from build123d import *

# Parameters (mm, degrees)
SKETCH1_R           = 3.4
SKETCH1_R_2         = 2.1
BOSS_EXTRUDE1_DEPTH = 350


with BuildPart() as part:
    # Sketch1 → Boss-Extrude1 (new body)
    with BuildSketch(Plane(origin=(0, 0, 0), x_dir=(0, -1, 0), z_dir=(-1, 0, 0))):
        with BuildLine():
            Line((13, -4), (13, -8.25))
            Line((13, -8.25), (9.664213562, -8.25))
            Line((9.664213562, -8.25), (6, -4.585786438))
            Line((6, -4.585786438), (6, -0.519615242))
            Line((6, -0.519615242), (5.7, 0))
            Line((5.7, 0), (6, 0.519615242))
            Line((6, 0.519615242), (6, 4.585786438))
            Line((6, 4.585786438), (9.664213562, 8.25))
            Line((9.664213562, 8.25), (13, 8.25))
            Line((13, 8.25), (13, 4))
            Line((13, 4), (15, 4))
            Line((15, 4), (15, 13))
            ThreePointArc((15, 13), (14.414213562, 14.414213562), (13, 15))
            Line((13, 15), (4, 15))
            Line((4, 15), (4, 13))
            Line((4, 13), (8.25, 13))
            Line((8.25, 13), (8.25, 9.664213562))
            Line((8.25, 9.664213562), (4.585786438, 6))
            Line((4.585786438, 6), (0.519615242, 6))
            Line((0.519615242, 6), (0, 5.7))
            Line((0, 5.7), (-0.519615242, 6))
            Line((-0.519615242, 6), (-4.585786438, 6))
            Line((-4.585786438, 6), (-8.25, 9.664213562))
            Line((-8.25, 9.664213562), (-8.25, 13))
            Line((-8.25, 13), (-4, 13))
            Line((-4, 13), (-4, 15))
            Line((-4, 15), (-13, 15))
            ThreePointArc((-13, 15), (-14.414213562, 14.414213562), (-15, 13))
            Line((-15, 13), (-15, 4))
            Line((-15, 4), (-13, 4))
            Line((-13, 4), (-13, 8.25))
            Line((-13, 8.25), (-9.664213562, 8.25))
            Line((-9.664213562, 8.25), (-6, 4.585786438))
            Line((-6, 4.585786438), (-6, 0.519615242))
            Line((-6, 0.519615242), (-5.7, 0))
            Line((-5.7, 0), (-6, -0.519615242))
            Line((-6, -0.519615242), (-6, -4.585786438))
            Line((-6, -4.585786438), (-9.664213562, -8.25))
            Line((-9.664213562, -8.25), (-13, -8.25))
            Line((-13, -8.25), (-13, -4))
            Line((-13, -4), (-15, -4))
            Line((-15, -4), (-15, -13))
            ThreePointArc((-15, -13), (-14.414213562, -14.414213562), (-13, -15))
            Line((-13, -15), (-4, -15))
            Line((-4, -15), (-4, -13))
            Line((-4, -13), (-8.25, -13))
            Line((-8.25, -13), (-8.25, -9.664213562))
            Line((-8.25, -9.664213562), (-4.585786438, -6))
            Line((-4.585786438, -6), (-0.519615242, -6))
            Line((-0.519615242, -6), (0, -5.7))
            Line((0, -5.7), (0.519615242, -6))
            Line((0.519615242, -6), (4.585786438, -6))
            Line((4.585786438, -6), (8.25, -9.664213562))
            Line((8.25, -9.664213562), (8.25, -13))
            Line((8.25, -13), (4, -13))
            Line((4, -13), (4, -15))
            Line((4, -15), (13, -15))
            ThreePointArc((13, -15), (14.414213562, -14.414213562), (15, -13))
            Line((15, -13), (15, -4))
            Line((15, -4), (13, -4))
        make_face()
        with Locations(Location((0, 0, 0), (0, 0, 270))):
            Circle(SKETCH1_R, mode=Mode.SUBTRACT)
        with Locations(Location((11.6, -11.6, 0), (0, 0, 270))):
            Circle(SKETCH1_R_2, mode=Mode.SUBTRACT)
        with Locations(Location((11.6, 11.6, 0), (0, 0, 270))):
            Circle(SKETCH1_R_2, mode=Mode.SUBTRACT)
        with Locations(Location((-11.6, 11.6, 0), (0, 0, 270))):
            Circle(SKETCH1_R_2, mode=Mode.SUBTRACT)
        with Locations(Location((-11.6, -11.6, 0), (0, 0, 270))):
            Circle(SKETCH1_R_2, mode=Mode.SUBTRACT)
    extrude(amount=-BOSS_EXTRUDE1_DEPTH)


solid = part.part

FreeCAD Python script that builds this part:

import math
import FreeCAD as App
import Part
import Sketcher
Q = App.Units.Quantity

doc = App.newDocument("Part")
body = doc.addObject("PartDesign::Body", "Body")

# Sketch on YZ plane
sketch1 = doc.addObject("Sketcher::SketchObject", "Sketch")
body.addObject(sketch1)
sketch1.AttachmentSupport = (doc.YZ_Plane, [""])
sketch1.MapMode = "FlatFace"
sketch1.addGeometry([
    Part.LineSegment(App.Vector(-13, -4, 0), App.Vector(-13, -8.2, 0)),  # 0
    Part.LineSegment(App.Vector(-13, -8.2, 0), App.Vector(-9.7, -8.2, 0)),  # 1
    Part.LineSegment(App.Vector(-9.7, -8.2, 0), App.Vector(-6, -4.6, 0)),  # 2
    Part.LineSegment(App.Vector(-6, -4.6, 0), App.Vector(-6, -0.5, 0)),  # 3
    Part.LineSegment(App.Vector(-6, -0.5, 0), App.Vector(-5.7, 0, 0)),  # 4
    Part.LineSegment(App.Vector(-5.7, 0, 0), App.Vector(-6, 0.5, 0)),  # 5
    Part.LineSegment(App.Vector(-6, 0.5, 0), App.Vector(-6, 4.6, 0)),  # 6
    Part.LineSegment(App.Vector(-6, 4.6, 0), App.Vector(-9.7, 8.2, 0)),  # 7
    Part.LineSegment(App.Vector(-9.7, 8.2, 0), App.Vector(-13, 8.2, 0)),  # 8
    Part.LineSegment(App.Vector(-13, 8.2, 0), App.Vector(-13, 4, 0)),  # 9
    Part.LineSegment(App.Vector(-13, 4, 0), App.Vector(-15, 4, 0)),  # 10
    Part.LineSegment(App.Vector(-15, 4, 0), App.Vector(-15, 13, 0)),  # 11
    Part.ArcOfCircle(Part.Circle(App.Vector(-13, 13, 0), App.Vector(0, 0, 1), 2), math.radians(90), math.radians(180)),  # 12
    Part.LineSegment(App.Vector(-13, 15, 0), App.Vector(-4, 15, 0)),  # 13
    Part.LineSegment(App.Vector(-4, 15, 0), App.Vector(-4, 13, 0)),  # 14
    Part.LineSegment(App.Vector(-4, 13, 0), App.Vector(-8.2, 13, 0)),  # 15
    Part.LineSegment(App.Vector(-8.2, 13, 0), App.Vector(-8.2, 9.7, 0)),  # 16
    Part.LineSegment(App.Vector(-8.2, 9.7, 0), App.Vector(-4.6, 6, 0)),  # 17
    Part.LineSegment(App.Vector(-4.6, 6, 0), App.Vector(-0.5, 6, 0)),  # 18
    Part.LineSegment(App.Vector(-0.5, 6, 0), App.Vector(0, 5.7, 0)),  # 19
    Part.LineSegment(App.Vector(0, 5.7, 0), App.Vector(0.5, 6, 0)),  # 20
    Part.LineSegment(App.Vector(0.5, 6, 0), App.Vector(4.6, 6, 0)),  # 21
    Part.LineSegment(App.Vector(4.6, 6, 0), App.Vector(8.2, 9.7, 0)),  # 22
    Part.LineSegment(App.Vector(8.2, 9.7, 0), App.Vector(8.2, 13, 0)),  # 23
    Part.LineSegment(App.Vector(8.2, 13, 0), App.Vector(4, 13, 0)),  # 24
    Part.LineSegment(App.Vector(4, 13, 0), App.Vector(4, 15, 0)),  # 25
    Part.LineSegment(App.Vector(4, 15, 0), App.Vector(13, 15, 0)),  # 26
    Part.ArcOfCircle(Part.Circle(App.Vector(13, 13, 0), App.Vector(0, 0, 1), 2), math.radians(0), math.radians(90)),  # 27
    Part.LineSegment(App.Vector(15, 13, 0), App.Vector(15, 4, 0)),  # 28
    Part.LineSegment(App.Vector(15, 4, 0), App.Vector(13, 4, 0)),  # 29
    Part.LineSegment(App.Vector(13, 4, 0), App.Vector(13, 8.2, 0)),  # 30
    Part.LineSegment(App.Vector(13, 8.2, 0), App.Vector(9.7, 8.2, 0)),  # 31
    Part.LineSegment(App.Vector(9.7, 8.2, 0), App.Vector(6, 4.6, 0)),  # 32
    Part.LineSegment(App.Vector(6, 4.6, 0), App.Vector(6, 0.5, 0)),  # 33
    Part.LineSegment(App.Vector(6, 0.5, 0), App.Vector(5.7, 0, 0)),  # 34
    Part.LineSegment(App.Vector(5.7, 0, 0), App.Vector(6, -0.5, 0)),  # 35
    Part.LineSegment(App.Vector(6, -0.5, 0), App.Vector(6, -4.6, 0)),  # 36
    Part.LineSegment(App.Vector(6, -4.6, 0), App.Vector(9.7, -8.2, 0)),  # 37
    Part.LineSegment(App.Vector(9.7, -8.2, 0), App.Vector(13, -8.2, 0)),  # 38
    Part.LineSegment(App.Vector(13, -8.2, 0), App.Vector(13, -4, 0)),  # 39
    Part.LineSegment(App.Vector(13, -4, 0), App.Vector(15, -4, 0)),  # 40
    Part.LineSegment(App.Vector(15, -4, 0), App.Vector(15, -13, 0)),  # 41
    Part.ArcOfCircle(Part.Circle(App.Vector(13, -13, 0), App.Vector(0, 0, 1), 2), math.radians(-90), math.radians(0)),  # 42
    Part.LineSegment(App.Vector(13, -15, 0), App.Vector(4, -15, 0)),  # 43
    Part.LineSegment(App.Vector(4, -15, 0), App.Vector(4, -13, 0)),  # 44
    Part.LineSegment(App.Vector(4, -13, 0), App.Vector(8.2, -13, 0)),  # 45
    Part.LineSegment(App.Vector(8.2, -13, 0), App.Vector(8.2, -9.7, 0)),  # 46
    Part.LineSegment(App.Vector(8.2, -9.7, 0), App.Vector(4.6, -6, 0)),  # 47
    Part.LineSegment(App.Vector(4.6, -6, 0), App.Vector(0.5, -6, 0)),  # 48
    Part.LineSegment(App.Vector(0.5, -6, 0), App.Vector(0, -5.7, 0)),  # 49
    Part.LineSegment(App.Vector(0, -5.7, 0), App.Vector(-0.5, -6, 0)),  # 50
    Part.LineSegment(App.Vector(-0.5, -6, 0), App.Vector(-4.6, -6, 0)),  # 51
    Part.LineSegment(App.Vector(-4.6, -6, 0), App.Vector(-8.2, -9.7, 0)),  # 52
    Part.LineSegment(App.Vector(-8.2, -9.7, 0), App.Vector(-8.2, -13, 0)),  # 53
    Part.LineSegment(App.Vector(-8.2, -13, 0), App.Vector(-4, -13, 0)),  # 54
    Part.LineSegment(App.Vector(-4, -13, 0), App.Vector(-4, -15, 0)),  # 55
    Part.LineSegment(App.Vector(-4, -15, 0), App.Vector(-13, -15, 0)),  # 56
    Part.ArcOfCircle(Part.Circle(App.Vector(-13, -13, 0), App.Vector(0, 0, 1), 2), math.radians(-180), math.radians(-90)),  # 57
    Part.LineSegment(App.Vector(-15, -13, 0), App.Vector(-15, -4, 0)),  # 58
    Part.LineSegment(App.Vector(-15, -4, 0), App.Vector(-13, -4, 0)),  # 59
    Part.Circle(App.Vector(11.6, -11.6, 0), App.Vector(0, 0, 1), 2.1),  # 60
    Part.Circle(App.Vector(-11.6, -11.6, 0), App.Vector(0, 0, 1), 2.1),  # 61
    Part.Circle(App.Vector(11.6, 11.6, 0), App.Vector(0, 0, 1), 2.1),  # 62
    Part.Circle(App.Vector(0, 0, 0), App.Vector(0, 0, 1), 3.4),  # 63
    Part.Circle(App.Vector(-11.6, 11.6, 0), App.Vector(0, 0, 1), 2.1),  # 64
], False)
sketch1.addConstraint([
    Sketcher.Constraint("Coincident", 0, 2, 1, 1),
    Sketcher.Constraint("Coincident", 1, 2, 2, 1),
    Sketcher.Constraint("Coincident", 2, 2, 3, 1),
    Sketcher.Constraint("Coincident", 3, 2, 4, 1),
    Sketcher.Constraint("Coincident", 4, 2, 5, 1),
    Sketcher.Constraint("Coincident", 5, 2, 6, 1),
    Sketcher.Constraint("Coincident", 6, 2, 7, 1),
    Sketcher.Constraint("Coincident", 7, 2, 8, 1),
    Sketcher.Constraint("Coincident", 8, 2, 9, 1),
    Sketcher.Constraint("Coincident", 9, 2, 10, 1),
    Sketcher.Constraint("Coincident", 10, 2, 11, 1),
    Sketcher.Constraint("Tangent", 11, 2, 12, 2),
    Sketcher.Constraint("Tangent", 12, 1, 13, 1),
    Sketcher.Constraint("Coincident", 13, 2, 14, 1),
    Sketcher.Constraint("Coincident", 14, 2, 15, 1),
    Sketcher.Constraint("Coincident", 15, 2, 16, 1),
    Sketcher.Constraint("Coincident", 16, 2, 17, 1),
    Sketcher.Constraint("Coincident", 17, 2, 18, 1),
    Sketcher.Constraint("Coincident", 18, 2, 19, 1),
    Sketcher.Constraint("Coincident", 19, 2, 20, 1),
    Sketcher.Constraint("Coincident", 20, 2, 21, 1),
    Sketcher.Constraint("Coincident", 21, 2, 22, 1),
    Sketcher.Constraint("Coincident", 22, 2, 23, 1),
    Sketcher.Constraint("Coincident", 23, 2, 24, 1),
    Sketcher.Constraint("Coincident", 24, 2, 25, 1),
    Sketcher.Constraint("Coincident", 25, 2, 26, 1),
    Sketcher.Constraint("Tangent", 26, 2, 27, 2),
    Sketcher.Constraint("Tangent", 27, 1, 28, 1),
    Sketcher.Constraint("Coincident", 28, 2, 29, 1),
    Sketcher.Constraint("Coincident", 29, 2, 30, 1),
    Sketcher.Constraint("Coincident", 30, 2, 31, 1),
    Sketcher.Constraint("Coincident", 31, 2, 32, 1),
    Sketcher.Constraint("Coincident", 32, 2, 33, 1),
    Sketcher.Constraint("Coincident", 33, 2, 34, 1),
    Sketcher.Constraint("Coincident", 34, 2, 35, 1),
    Sketcher.Constraint("Coincident", 35, 2, 36, 1),
    Sketcher.Constraint("Coincident", 36, 2, 37, 1),
    Sketcher.Constraint("Coincident", 37, 2, 38, 1),
    Sketcher.Constraint("Coincident", 38, 2, 39, 1),
    Sketcher.Constraint("Coincident", 39, 2, 40, 1),
    Sketcher.Constraint("Coincident", 40, 2, 41, 1),
    Sketcher.Constraint("Tangent", 41, 2, 42, 2),
    Sketcher.Constraint("Tangent", 42, 1, 43, 1),
    Sketcher.Constraint("Coincident", 43, 2, 44, 1),
    Sketcher.Constraint("Coincident", 44, 2, 45, 1),
    Sketcher.Constraint("Coincident", 45, 2, 46, 1),
    Sketcher.Constraint("Coincident", 46, 2, 47, 1),
    Sketcher.Constraint("Coincident", 47, 2, 48, 1),
    Sketcher.Constraint("Coincident", 48, 2, 49, 1),
    Sketcher.Constraint("Coincident", 49, 2, 50, 1),
    Sketcher.Constraint("Coincident", 50, 2, 51, 1),
    Sketcher.Constraint("Coincident", 51, 2, 52, 1),
    Sketcher.Constraint("Coincident", 52, 2, 53, 1),
    Sketcher.Constraint("Coincident", 53, 2, 54, 1),
    Sketcher.Constraint("Coincident", 54, 2, 55, 1),
    Sketcher.Constraint("Coincident", 55, 2, 56, 1),
    Sketcher.Constraint("Tangent", 56, 2, 57, 2),
    Sketcher.Constraint("Tangent", 57, 1, 58, 1),
    Sketcher.Constraint("Coincident", 58, 2, 59, 1),
    Sketcher.Constraint("Coincident", 59, 2, 0, 1),
    Sketcher.Constraint("Vertical", 0),
    Sketcher.Constraint("Horizontal", 1),
    Sketcher.Constraint("Vertical", 3),
    Sketcher.Constraint("Vertical", 6),
    Sketcher.Constraint("Horizontal", 8),
    Sketcher.Constraint("Vertical", 9),
    Sketcher.Constraint("Horizontal", 10),
    Sketcher.Constraint("Vertical", 11),
    Sketcher.Constraint("Horizontal", 13),
    Sketcher.Constraint("Vertical", 14),
    Sketcher.Constraint("Horizontal", 15),
    Sketcher.Constraint("Vertical", 16),
    Sketcher.Constraint("Horizontal", 18),
    Sketcher.Constraint("Horizontal", 21),
    Sketcher.Constraint("Vertical", 23),
    Sketcher.Constraint("Horizontal", 24),
    Sketcher.Constraint("Vertical", 25),
    Sketcher.Constraint("Horizontal", 26),
    Sketcher.Constraint("Vertical", 28),
    Sketcher.Constraint("Horizontal", 29),
    Sketcher.Constraint("Vertical", 30),
    Sketcher.Constraint("Horizontal", 31),
    Sketcher.Constraint("Vertical", 33),
    Sketcher.Constraint("Vertical", 36),
    Sketcher.Constraint("Horizontal", 38),
    Sketcher.Constraint("Vertical", 39),
    Sketcher.Constraint("Horizontal", 40),
    Sketcher.Constraint("Vertical", 41),
    Sketcher.Constraint("Horizontal", 43),
    Sketcher.Constraint("Vertical", 44),
    Sketcher.Constraint("Horizontal", 45),
    Sketcher.Constraint("Vertical", 46),
    Sketcher.Constraint("Horizontal", 48),
    Sketcher.Constraint("Horizontal", 51),
    Sketcher.Constraint("Vertical", 53),
    Sketcher.Constraint("Horizontal", 54),
    Sketcher.Constraint("Vertical", 55),
    Sketcher.Constraint("Horizontal", 56),
    Sketcher.Constraint("Vertical", 58),
    Sketcher.Constraint("Horizontal", 59),
    Sketcher.Constraint("Coincident", 63, 3, -1, 1),
    Sketcher.Constraint("Equal", 12, 27),
    Sketcher.Constraint("Equal", 27, 42),
    Sketcher.Constraint("Equal", 42, 57),
    Sketcher.Constraint("Equal", 60, 61),
    Sketcher.Constraint("Equal", 61, 62),
    Sketcher.Constraint("Equal", 62, 64),
    Sketcher.Constraint("Symmetric", 12, 3, 42, 3, -1, 1),
    Sketcher.Constraint("Symmetric", 27, 3, 57, 3, -1, 1),
    Sketcher.Constraint("Symmetric", 61, 3, 62, 3, -1, 1),
    Sketcher.Constraint("Symmetric", 60, 3, 64, 3, -1, 1),
    Sketcher.Constraint("Symmetric", 0, 2, 30, 2, -1, 1),
    Sketcher.Constraint("Symmetric", 2, 2, 32, 2, -1, 1),
    Sketcher.Constraint("Symmetric", 4, 2, 34, 2, -1, 1),
    Sketcher.Constraint("Symmetric", 5, 2, 35, 2, -1, 1),
    Sketcher.Constraint("Symmetric", 7, 2, 37, 2, -1, 1),
    Sketcher.Constraint("Symmetric", 9, 2, 39, 2, -1, 1),
    Sketcher.Constraint("Symmetric", 14, 2, 44, 2, -1, 1),
    Sketcher.Constraint("Symmetric", 16, 2, 46, 2, -1, 1),
    Sketcher.Constraint("Symmetric", 17, 2, 47, 2, -1, 1),
    Sketcher.Constraint("Symmetric", 19, 2, 49, 2, -1, 1),
    Sketcher.Constraint("Symmetric", 20, 2, 50, 2, -1, 1),
    Sketcher.Constraint("Symmetric", 22, 2, 52, 2, -1, 1),
    Sketcher.Constraint("Symmetric", 24, 2, 54, 2, -1, 1),
    Sketcher.Constraint("Symmetric", 12, 3, 27, 3, -2),
    Sketcher.Constraint("Symmetric", 60, 3, 61, 3, -2),
    Sketcher.Constraint("Symmetric", 18, 2, 20, 2, -2),
    Sketcher.Constraint("Symmetric", 16, 2, 22, 2, -2),
    Sketcher.Constraint("Symmetric", 14, 2, 24, 2, -2),
    Sketcher.Constraint("Symmetric", 9, 2, 29, 2, -2),
    Sketcher.Constraint("Symmetric", 7, 2, 31, 2, -2),
    Sketcher.Constraint("Symmetric", 6, 2, 32, 2, -2),
    Sketcher.Constraint("PointOnObject", 4, 2, -1),
    Sketcher.Constraint("PointOnObject", 19, 2, -2),
    Sketcher.Constraint("Perpendicular", 2, 7),
    Sketcher.Constraint("Parallel", 7, 17),
    Sketcher.Constraint("Perpendicular", 4, 19),
    Sketcher.Constraint("Perpendicular", 5, 20),
    Sketcher.Constraint("Perpendicular", 17, 22),
    Sketcher.Constraint("Parallel", 22, 32),
    Sketcher.Constraint("Perpendicular", 19, 34),
    Sketcher.Constraint("Perpendicular", 32, 37),
    Sketcher.Constraint("Perpendicular", 34, 49),
    Sketcher.Constraint("Perpendicular", 47, 52),
    Sketcher.Constraint("Horizontal", 11, 2, 14, 2),
    Sketcher.Constraint("Horizontal", 40, 2, 58, 2),
    Sketcher.Constraint("Vertical", 57, 3, 0, 2),
    Sketcher.Constraint("Equal", 54, 0),
    Sketcher.Constraint("Equal", 51, 3),
    Sketcher.Constraint("Equal", 56, 11),
    Sketcher.Constraint("Equal", 38, 16),
    Sketcher.Constraint("Equal", 7, 17),
    Sketcher.Constraint("Equal", 5, 19),
    Sketcher.Constraint("Radius", 12, Q("2 mm")),
    Sketcher.Constraint("Diameter", 60, Q("4.2 mm")),
    Sketcher.Constraint("Diameter", 63, Q("6.8 mm")),
    Sketcher.Constraint("DistanceX", 13, 1, 13, 2, Q("9 mm")),
    Sketcher.Constraint("Angle", 4, Q("60 deg")),
    Sketcher.Constraint("DistanceX", 12, 3, -1, 1, Q("13 mm")),
    Sketcher.Constraint("DistanceX", 2, 2, -1, 1, Q("6 mm")),
    Sketcher.Constraint("Distance", 4, Q("0.6 mm")),
    Sketcher.Constraint("DistanceX", 15, 2, 15, 1, Q("4.25 mm")),
    Sketcher.Constraint("DistanceX", -1, 1, 60, 3, Q("11.6 mm")),
    Sketcher.Constraint("DistanceY", 60, 3, -1, 1, Q("11.6 mm")),
    Sketcher.Constraint("DistanceX", 18, 1, 18, 2, Q("4.066171 mm")),
])
pad1 = doc.addObject("PartDesign::Pad", "Pad")
body.addObject(pad1)
pad1.Profile = sketch1
pad1.Length = 350

doc.recompute()
